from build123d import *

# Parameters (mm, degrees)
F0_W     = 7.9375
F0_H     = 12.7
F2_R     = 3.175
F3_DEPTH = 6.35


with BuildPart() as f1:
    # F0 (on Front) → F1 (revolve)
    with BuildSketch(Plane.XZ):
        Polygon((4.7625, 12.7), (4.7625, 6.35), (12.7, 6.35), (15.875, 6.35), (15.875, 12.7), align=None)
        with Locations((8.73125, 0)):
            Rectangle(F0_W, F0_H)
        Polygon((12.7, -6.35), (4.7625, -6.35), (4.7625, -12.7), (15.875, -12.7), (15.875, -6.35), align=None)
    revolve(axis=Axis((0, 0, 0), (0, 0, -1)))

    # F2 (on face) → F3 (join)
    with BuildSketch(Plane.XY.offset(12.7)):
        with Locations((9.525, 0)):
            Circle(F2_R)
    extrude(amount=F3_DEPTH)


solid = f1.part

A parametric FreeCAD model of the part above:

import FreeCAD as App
import Part
import Sketcher
Q = App.Units.Quantity


def add_polygon(sketch, points):
    """Adds a closed chain of lines whose ends are joined by coincident constraints."""
    first, n = sketch.GeometryCount, len(points)
    for a, b in zip(points, points[1:] + points[:1]):
        sketch.addGeometry(Part.LineSegment(App.Vector(*a, 0), App.Vector(*b, 0)), False)
    for i in range(n):
        sketch.addConstraint(Sketcher.Constraint("Coincident", first + i, 2, first + (i + 1) % n, 1))

doc = App.newDocument("Part")
body = doc.addObject("PartDesign::Body", "Body")

# Sketch on XZ plane
sketch1 = body.newObject("Sketcher::SketchObject", "Sketch")
sketch1.AttachmentSupport = (doc.getObject("XZ_Plane"), [""])
sketch1.MapMode = "FlatFace"
add_polygon(sketch1, [(4.8, 12.7), (4.8, -12.7), (15.9, -12.7), (15.9, -6.3), (12.7, -6.3), (12.7, 6.3), (15.9, 6.3), (15.9, 12.7)])  # lines 0-7
sketch1.addConstraint(Sketcher.Constraint("Vertical", 0))
sketch1.addConstraint(Sketcher.Constraint("Horizontal", 1))
sketch1.addConstraint(Sketcher.Constraint("Vertical", 2))
sketch1.addConstraint(Sketcher.Constraint("Horizontal", 3))
sketch1.addConstraint(Sketcher.Constraint("Vertical", 4))
sketch1.addConstraint(Sketcher.Constraint("Horizontal", 5))
sketch1.addConstraint(Sketcher.Constraint("Vertical", 6))
sketch1.addConstraint(Sketcher.Constraint("Horizontal", 7))
sketch1.addConstraint(Sketcher.Constraint("Symmetric", 2, 2, 5, 2, -1))
sketch1.addConstraint(Sketcher.Constraint("Equal", 2, 6))
sketch1.addConstraint(Sketcher.Constraint("DistanceY", 0, 2, 0, 1, Q("1 in")))
sketch1.addConstraint(Sketcher.Constraint("DistanceY", 4, 1, 4, 2, Q("0.5 in")))
sketch1.addConstraint(Sketcher.Constraint("DistanceX", -1, 1, 3, 2, Q("0.5 in")))
sketch1.addConstraint(Sketcher.Constraint("DistanceX", 1, 1, 1, 2, Q("0.4375 in")))
sketch1.addConstraint(Sketcher.Constraint("DistanceX", 3, 2, 3, 1, Q("0.125 in")))
revolution = body.newObject("PartDesign::Revolution", "Revolution")
revolution.Profile = sketch1
revolution.ReferenceAxis = (sketch1, ["V_Axis"])
revolution.Angle = 360

# Sketch on XY plane
sketch2 = body.newObject("Sketcher::SketchObject", "Sketch001")
sketch2.AttachmentSupport = (doc.getObject("XY_Plane"), [""])
sketch2.MapMode = "FlatFace"
sketch2.AttachmentOffset = App.Placement(App.Vector(0, 0, 0.5 * 25.4), App.Rotation())
sketch2.addGeometry(Part.Circle(App.Vector(9.5, 0, 0), App.Vector(0, 0, 1), 3.2), False)
sketch2.addConstraint(Sketcher.Constraint("PointOnObject", 0, 3, -1))
sketch2.addConstraint(Sketcher.Constraint("Diameter", 0, Q("0.25 in")))
sketch2.addConstraint(Sketcher.Constraint("DistanceX", -1, 1, 0, 3, Q("0.375 in")))
pad1 = body.newObject("PartDesign::Pad", "Pad")
pad1.Profile = sketch2
pad1.Length = Q("0.25 in")

doc.recompute()
